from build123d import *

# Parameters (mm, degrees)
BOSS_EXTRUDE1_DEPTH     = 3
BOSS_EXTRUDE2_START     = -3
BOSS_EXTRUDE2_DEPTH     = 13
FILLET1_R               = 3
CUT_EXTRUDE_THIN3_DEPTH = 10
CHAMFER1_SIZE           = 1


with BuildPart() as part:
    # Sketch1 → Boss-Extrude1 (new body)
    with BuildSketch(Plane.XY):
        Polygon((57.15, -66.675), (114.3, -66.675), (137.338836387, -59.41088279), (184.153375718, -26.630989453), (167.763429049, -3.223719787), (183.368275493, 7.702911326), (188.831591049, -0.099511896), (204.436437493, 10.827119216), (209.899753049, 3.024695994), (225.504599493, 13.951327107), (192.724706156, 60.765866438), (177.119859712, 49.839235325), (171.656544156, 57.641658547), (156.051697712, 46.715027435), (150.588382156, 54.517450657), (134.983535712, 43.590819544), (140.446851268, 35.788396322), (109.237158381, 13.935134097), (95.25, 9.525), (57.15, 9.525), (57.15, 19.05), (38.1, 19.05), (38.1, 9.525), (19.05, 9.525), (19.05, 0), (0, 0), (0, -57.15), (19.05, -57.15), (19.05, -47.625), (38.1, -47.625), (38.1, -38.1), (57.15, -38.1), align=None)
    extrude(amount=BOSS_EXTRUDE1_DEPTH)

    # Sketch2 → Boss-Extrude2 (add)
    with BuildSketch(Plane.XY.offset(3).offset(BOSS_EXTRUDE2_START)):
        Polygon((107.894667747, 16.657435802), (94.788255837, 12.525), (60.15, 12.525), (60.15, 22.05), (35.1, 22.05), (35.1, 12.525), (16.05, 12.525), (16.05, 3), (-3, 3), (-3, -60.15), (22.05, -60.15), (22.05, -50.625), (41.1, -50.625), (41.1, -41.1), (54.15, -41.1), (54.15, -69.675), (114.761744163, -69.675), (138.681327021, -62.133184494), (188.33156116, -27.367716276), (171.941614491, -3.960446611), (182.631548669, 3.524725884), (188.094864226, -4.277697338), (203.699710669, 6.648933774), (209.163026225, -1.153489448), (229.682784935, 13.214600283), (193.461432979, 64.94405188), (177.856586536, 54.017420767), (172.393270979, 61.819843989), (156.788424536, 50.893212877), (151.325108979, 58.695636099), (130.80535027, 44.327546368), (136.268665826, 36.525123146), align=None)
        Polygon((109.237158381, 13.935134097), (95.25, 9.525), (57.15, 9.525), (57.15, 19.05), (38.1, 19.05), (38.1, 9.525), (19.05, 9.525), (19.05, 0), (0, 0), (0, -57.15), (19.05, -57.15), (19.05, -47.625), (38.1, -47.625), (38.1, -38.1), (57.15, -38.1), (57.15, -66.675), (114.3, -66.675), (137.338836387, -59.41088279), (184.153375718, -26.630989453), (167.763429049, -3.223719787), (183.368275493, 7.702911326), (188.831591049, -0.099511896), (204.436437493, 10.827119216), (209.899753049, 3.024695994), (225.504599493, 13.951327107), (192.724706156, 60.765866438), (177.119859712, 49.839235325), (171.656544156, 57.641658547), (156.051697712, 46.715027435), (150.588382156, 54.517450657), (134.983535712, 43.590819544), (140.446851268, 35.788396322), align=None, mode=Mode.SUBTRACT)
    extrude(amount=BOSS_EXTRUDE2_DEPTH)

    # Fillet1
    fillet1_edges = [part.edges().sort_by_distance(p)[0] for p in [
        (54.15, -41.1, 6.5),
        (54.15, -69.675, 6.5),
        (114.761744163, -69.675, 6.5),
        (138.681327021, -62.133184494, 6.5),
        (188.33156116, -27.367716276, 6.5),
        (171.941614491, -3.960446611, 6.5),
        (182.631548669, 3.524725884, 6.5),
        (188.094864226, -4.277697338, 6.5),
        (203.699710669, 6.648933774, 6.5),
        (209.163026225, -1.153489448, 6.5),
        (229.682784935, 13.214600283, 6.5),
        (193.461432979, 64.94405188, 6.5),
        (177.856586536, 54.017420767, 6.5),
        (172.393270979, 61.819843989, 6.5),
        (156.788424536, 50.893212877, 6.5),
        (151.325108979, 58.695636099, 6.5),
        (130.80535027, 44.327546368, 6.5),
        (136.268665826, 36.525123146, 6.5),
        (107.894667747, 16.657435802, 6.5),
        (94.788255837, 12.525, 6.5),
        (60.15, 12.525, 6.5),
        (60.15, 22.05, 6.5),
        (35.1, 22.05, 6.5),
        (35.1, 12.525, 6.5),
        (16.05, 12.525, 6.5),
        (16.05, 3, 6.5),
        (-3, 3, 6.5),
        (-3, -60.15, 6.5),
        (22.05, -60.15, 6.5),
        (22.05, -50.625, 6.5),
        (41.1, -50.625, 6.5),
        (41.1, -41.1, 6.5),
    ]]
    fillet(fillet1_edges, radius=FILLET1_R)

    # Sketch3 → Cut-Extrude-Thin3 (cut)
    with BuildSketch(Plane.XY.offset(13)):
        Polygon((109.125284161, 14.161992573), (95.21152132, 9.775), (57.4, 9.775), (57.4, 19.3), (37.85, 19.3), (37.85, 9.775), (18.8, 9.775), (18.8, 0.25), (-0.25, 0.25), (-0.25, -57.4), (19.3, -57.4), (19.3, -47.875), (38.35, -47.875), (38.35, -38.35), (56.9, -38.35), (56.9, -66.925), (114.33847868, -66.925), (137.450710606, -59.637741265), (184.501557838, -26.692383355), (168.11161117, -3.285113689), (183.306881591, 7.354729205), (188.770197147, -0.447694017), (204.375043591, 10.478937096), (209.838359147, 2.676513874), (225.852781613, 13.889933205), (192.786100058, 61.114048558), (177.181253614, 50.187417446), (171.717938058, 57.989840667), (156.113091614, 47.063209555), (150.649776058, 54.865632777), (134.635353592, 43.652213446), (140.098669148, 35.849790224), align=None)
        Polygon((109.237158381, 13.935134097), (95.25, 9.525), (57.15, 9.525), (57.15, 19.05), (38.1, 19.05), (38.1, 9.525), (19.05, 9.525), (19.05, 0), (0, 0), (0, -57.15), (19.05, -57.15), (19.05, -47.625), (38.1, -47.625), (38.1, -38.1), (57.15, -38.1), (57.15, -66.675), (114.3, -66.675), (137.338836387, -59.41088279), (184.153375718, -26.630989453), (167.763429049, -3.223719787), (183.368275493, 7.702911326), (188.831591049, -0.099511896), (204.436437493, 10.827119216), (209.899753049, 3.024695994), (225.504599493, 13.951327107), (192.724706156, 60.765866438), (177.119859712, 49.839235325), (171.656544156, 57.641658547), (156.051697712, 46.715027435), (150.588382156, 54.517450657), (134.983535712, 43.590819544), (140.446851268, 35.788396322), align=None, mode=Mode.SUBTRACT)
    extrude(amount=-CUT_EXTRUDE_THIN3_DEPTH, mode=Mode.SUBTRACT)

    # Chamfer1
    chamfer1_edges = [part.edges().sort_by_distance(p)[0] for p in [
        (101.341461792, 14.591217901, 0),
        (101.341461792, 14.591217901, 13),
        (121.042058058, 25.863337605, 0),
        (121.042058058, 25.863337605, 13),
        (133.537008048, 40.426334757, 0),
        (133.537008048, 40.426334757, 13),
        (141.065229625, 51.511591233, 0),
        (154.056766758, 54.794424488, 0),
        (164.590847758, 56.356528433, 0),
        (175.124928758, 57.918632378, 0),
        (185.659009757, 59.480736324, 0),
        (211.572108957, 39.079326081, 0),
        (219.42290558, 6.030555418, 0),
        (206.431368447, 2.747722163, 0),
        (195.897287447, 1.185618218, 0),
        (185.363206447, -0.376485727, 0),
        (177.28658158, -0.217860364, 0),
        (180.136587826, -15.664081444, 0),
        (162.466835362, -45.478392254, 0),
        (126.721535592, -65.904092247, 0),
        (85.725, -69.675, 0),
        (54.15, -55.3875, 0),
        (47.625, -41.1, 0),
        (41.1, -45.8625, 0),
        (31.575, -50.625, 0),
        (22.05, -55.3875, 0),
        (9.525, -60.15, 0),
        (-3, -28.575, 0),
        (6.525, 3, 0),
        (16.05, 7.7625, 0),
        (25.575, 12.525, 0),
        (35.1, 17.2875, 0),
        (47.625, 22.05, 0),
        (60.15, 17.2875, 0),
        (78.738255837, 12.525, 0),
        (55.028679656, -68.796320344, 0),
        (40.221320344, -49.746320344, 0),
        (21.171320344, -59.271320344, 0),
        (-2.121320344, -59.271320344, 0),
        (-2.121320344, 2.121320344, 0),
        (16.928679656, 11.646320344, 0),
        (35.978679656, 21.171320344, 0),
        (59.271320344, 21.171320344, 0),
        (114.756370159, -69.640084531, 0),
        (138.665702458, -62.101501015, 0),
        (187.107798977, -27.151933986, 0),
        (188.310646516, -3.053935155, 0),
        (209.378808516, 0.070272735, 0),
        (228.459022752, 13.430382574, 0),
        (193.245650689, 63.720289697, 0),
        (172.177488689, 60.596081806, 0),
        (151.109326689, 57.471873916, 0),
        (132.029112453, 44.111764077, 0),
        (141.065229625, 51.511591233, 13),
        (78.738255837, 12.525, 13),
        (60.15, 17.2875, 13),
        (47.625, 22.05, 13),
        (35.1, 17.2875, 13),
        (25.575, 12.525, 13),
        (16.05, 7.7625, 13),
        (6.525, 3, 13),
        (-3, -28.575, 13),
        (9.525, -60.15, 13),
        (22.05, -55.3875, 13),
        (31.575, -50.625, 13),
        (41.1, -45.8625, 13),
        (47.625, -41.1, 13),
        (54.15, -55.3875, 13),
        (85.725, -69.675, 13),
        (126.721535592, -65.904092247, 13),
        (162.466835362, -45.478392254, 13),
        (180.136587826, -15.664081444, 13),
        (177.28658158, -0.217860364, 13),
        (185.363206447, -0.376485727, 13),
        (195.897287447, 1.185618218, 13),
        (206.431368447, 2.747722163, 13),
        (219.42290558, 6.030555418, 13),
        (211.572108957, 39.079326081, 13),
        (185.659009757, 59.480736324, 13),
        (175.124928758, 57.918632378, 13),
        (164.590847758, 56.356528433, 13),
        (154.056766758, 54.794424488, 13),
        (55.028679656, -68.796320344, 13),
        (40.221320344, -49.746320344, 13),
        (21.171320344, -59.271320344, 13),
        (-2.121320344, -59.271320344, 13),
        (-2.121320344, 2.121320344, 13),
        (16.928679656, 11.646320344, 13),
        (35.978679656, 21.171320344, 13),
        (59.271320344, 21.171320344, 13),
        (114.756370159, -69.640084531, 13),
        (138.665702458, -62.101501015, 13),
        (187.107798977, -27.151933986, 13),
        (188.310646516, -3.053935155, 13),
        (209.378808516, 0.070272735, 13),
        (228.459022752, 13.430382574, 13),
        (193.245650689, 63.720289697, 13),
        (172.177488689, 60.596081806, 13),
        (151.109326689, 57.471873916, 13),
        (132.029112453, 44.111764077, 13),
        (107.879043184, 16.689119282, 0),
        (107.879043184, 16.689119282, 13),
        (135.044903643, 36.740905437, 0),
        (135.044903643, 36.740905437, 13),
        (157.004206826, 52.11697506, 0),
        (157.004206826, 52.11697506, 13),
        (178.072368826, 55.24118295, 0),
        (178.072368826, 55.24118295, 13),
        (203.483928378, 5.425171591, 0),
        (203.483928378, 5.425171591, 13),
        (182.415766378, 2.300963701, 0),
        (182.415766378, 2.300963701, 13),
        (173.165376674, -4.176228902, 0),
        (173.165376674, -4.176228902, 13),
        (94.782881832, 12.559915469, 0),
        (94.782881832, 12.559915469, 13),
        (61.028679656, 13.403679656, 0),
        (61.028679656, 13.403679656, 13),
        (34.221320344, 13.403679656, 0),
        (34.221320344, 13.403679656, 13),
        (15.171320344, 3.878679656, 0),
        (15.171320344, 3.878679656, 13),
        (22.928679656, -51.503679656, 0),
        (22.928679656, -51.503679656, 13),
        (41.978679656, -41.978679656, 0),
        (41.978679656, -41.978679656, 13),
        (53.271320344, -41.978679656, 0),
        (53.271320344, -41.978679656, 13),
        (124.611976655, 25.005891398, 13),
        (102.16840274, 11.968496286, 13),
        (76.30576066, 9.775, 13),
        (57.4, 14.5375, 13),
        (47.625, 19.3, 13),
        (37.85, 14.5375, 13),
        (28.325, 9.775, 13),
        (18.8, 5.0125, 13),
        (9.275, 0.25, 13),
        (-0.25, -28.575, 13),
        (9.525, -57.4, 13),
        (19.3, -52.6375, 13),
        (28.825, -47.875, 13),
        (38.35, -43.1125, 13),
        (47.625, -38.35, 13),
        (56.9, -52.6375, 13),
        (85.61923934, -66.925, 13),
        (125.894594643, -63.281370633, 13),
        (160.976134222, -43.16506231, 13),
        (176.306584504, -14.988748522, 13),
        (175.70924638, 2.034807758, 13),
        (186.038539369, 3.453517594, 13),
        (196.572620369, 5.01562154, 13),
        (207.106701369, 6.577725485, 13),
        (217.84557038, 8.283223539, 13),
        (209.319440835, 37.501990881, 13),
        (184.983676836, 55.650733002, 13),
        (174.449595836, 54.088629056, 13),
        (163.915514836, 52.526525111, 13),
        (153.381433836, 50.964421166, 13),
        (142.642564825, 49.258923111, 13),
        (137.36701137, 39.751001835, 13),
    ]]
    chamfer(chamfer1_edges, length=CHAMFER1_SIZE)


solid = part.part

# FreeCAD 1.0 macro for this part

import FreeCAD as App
import Part
import Sketcher
from FreeCAD import Vector
Q = App.Units.Quantity


def edges_at(feature, points):
    """Names of the edges that pass closest to the given points."""
    edges = feature.Shape.Edges
    near = lambda p: min(range(len(edges)), key=lambda i: edges[i].distToShape(Part.Vertex(*p))[0])
    return sorted({f"Edge{near(p) + 1}" for p in points})


def add_polygon(sketch, points):
    """Adds a closed chain of lines whose ends are joined by coincident constraints."""
    first, n = sketch.GeometryCount, len(points)
    for a, b in zip(points, points[1:] + points[:1]):
        sketch.addGeometry(Part.LineSegment(App.Vector(*a, 0), App.Vector(*b, 0)), False)
    for i in range(n):
        sketch.addConstraint(Sketcher.Constraint("Coincident", first + i, 2, first + (i + 1) % n, 1))

doc = App.newDocument("Part")
body = doc.addObject("PartDesign::Body", "Body")

sketch1 = body.newObject("Sketcher::SketchObject", "Sketch")
sketch1.AttachmentSupport = (doc.getObject("XY_Plane"), [""])
sketch1.MapMode = "FlatFace"
add_polygon(sketch1, [(57.15, -66.675), (114.3, -66.675), (137.338836, -59.410883), (184.153376, -26.630989), (167.763429, -3.22372), (183.368275, 7.702911), (188.831591, -0.099512), (204.436437, 10.827119), (209.899753, 3.024696), (225.504599, 13.951327), (192.724706, 60.765866), (177.11986, 49.839235), (171.656544, 57.641659), (156.051698, 46.715027), (150.588382, 54.517451), (134.983536, 43.59082), (140.446851, 35.788396), (109.237158, 13.935134), (95.25, 9.525), (57.15, 9.525), (57.15, 19.05), (38.1, 19.05), (38.1, 9.525), (19.05, 9.525), (19.05, 0), (0, 0), (0, -57.15), (19.05, -57.15), (19.05, -47.625), (38.1, -47.625), (38.1, -38.1), (57.15, -38.1)])
sketch1.addConstraint(Sketcher.Constraint("Horizontal", 0))
sketch1.addConstraint(Sketcher.Constraint("Horizontal", 18))
sketch1.addConstraint(Sketcher.Constraint("Vertical", 19))
sketch1.addConstraint(Sketcher.Constraint("Horizontal", 20))
sketch1.addConstraint(Sketcher.Constraint("Vertical", 21))
sketch1.addConstraint(Sketcher.Constraint("Horizontal", 22))
sketch1.addConstraint(Sketcher.Constraint("Vertical", 23))
sketch1.addConstraint(Sketcher.Constraint("Horizontal", 24))
sketch1.addConstraint(Sketcher.Constraint("Vertical", 25))
sketch1.addConstraint(Sketcher.Constraint("Horizontal", 26))
sketch1.addConstraint(Sketcher.Constraint("Vertical", 27))
sketch1.addConstraint(Sketcher.Constraint("Horizontal", 28))
sketch1.addConstraint(Sketcher.Constraint("Vertical", 29))
sketch1.addConstraint(Sketcher.Constraint("Horizontal", 30))
sketch1.addConstraint(Sketcher.Constraint("Vertical", 31))
sketch1.addConstraint(Sketcher.Constraint("Coincident", 24, 2, -1, 1))
sketch1.addConstraint(Sketcher.Constraint("Perpendicular", 2, 3))
sketch1.addConstraint(Sketcher.Constraint("Perpendicular", 3, 4))
sketch1.addConstraint(Sketcher.Constraint("Perpendicular", 4, 5))
sketch1.addConstraint(Sketcher.Constraint("Perpendicular", 5, 6))
sketch1.addConstraint(Sketcher.Constraint("Perpendicular", 6, 7))
sketch1.addConstraint(Sketcher.Constraint("Perpendicular", 7, 8))
sketch1.addConstraint(Sketcher.Constraint("Perpendicular", 8, 9))
sketch1.addConstraint(Sketcher.Constraint("Perpendicular", 9, 10))
sketch1.addConstraint(Sketcher.Constraint("Perpendicular", 10, 11))
sketch1.addConstraint(Sketcher.Constraint("Perpendicular", 11, 12))
sketch1.addConstraint(Sketcher.Constraint("Perpendicular", 12, 13))
sketch1.addConstraint(Sketcher.Constraint("Perpendicular", 13, 14))
sketch1.addConstraint(Sketcher.Constraint("Perpendicular", 14, 15))
sketch1.addConstraint(Sketcher.Constraint("Perpendicular", 15, 16))
sketch1.addConstraint(Sketcher.Constraint("Parallel", 1, 17))
sketch1.addConstraint(Sketcher.Constraint("Horizontal", 18, 2, 21, 2))
sketch1.addConstraint(Sketcher.Constraint("Vertical", 23, 2, 26, 2))
sketch1.addConstraint(Sketcher.Constraint("Vertical", 21, 2, 28, 2))
sketch1.addConstraint(Sketcher.Constraint("Vertical", 19, 2, 30, 2))
sketch1.addConstraint(Sketcher.Constraint("Equal", 20, 22))
sketch1.addConstraint(Sketcher.Constraint("Equal", 22, 24))
sketch1.addConstraint(Sketcher.Constraint("Equal", 21, 23))
sketch1.addConstraint(Sketcher.Constraint("Equal", 0, 25))
sketch1.addConstraint(Sketcher.Constraint("Equal", 23, 27))
sketch1.addConstraint(Sketcher.Constraint("Equal", 27, 29))
sketch1.addConstraint(Sketcher.Constraint("Equal", 4, 6))
sketch1.addConstraint(Sketcher.Constraint("Equal", 5, 7))
sketch1.addConstraint(Sketcher.Constraint("Equal", 6, 8))
sketch1.addConstraint(Sketcher.Constraint("Equal", 2, 9))
sketch1.addConstraint(Sketcher.Constraint("Equal", 8, 10))
sketch1.addConstraint(Sketcher.Constraint("Equal", 7, 11))
sketch1.addConstraint(Sketcher.Constraint("Equal", 10, 12))
sketch1.addConstraint(Sketcher.Constraint("Equal", 11, 13))
sketch1.addConstraint(Sketcher.Constraint("Equal", 12, 14))
sketch1.addConstraint(Sketcher.Constraint("Equal", 13, 15))
sketch1.addConstraint(Sketcher.Constraint("DistanceX", 18, 2, 18, 1, Q("1.5 in")))
sketch1.addConstraint(Sketcher.Constraint("Angle", 2, Q("35 deg")))
sketch1.addConstraint(Sketcher.Constraint("DistanceY", 0, 2, 18, 2, Q("3 in")))
sketch1.addConstraint(Sketcher.Constraint("DistanceX", 22, 2, 17, 2, Q("3 in")))
sketch1.addConstraint(Sketcher.Constraint("DistanceY", 25, 2, 20, 2, Q("3 in")))
sketch1.addConstraint(Sketcher.Constraint("Distance", 16, Q("1.5 in")))
sketch1.addConstraint(Sketcher.Constraint("DistanceX", 0, 1, 0, 2, Q("2.25 in")))
sketch1.addConstraint(Sketcher.Constraint("Angle", 1, Q("17.5 deg")))
sketch1.addConstraint(Sketcher.Constraint("Distance", 2, Q("2.25 in")))
sketch1.addConstraint(Sketcher.Constraint("Distance", 4, Q("0.75 in")))
sketch1.addConstraint(Sketcher.Constraint("Distance", 3, Q("1.125 in")))
sketch1.addConstraint(Sketcher.Constraint("DistanceX", -1, 1, 8, 2, Q("225.504599 mm")))
pad1 = body.newObject("PartDesign::Pad", "Pad")
pad1.Profile = sketch1
pad1.Length = 3

sketch2 = body.newObject("Sketcher::SketchObject", "Sketch001")
sketch2.AttachmentSupport = (doc.getObject("XY_Plane"), [""])
sketch2.MapMode = "FlatFace"
add_polygon(sketch2, [(107.894668, 16.657436), (94.788256, 12.525), (60.15, 12.525), (60.15, 22.05), (35.1, 22.05), (35.1, 12.525), (16.05, 12.525), (16.05, 3), (-3, 3), (-3, -60.15), (22.05, -60.15), (22.05, -50.625), (41.1, -50.625), (41.1, -41.1), (54.15, -41.1), (54.15, -69.675), (114.761744, -69.675), (138.681327, -62.133184), (188.331561, -27.367716), (171.941614, -3.960447), (182.631549, 3.524726), (188.094864, -4.277697), (203.699711, 6.648934), (209.163026, -1.153489), (229.682785, 13.2146), (193.461433, 64.944052), (177.856587, 54.017421), (172.393271, 61.819844), (156.788425, 50.893213), (151.325109, 58.695636), (130.80535, 44.327546), (136.268666, 36.525123)])
add_polygon(sketch2, [(95.25, 9.525), (109.237158, 13.935134), (140.446851, 35.788396), (134.983536, 43.59082), (150.588382, 54.517451), (156.051698, 46.715027), (171.656544, 57.641659), (177.11986, 49.839235), (192.724706, 60.765866), (225.504599, 13.951327), (209.899753, 3.024696), (204.436437, 10.827119), (188.831591, -0.099512), (183.368275, 7.702911), (167.763429, -3.22372), (184.153376, -26.630989), (137.338836, -59.410883), (114.3, -66.675), (57.15, -66.675), (57.15, -38.1), (38.1, -38.1), (38.1, -47.625), (19.05, -47.625), (19.05, -57.15), (0, -57.15), (0, 0), (19.05, 0), (19.05, 9.525), (38.1, 9.525), (38.1, 19.05), (57.15, 19.05), (57.15, 9.525)])
sketch2.addConstraint(Sketcher.Constraint("Horizontal", 1))
sketch2.addConstraint(Sketcher.Constraint("Vertical", 2))
sketch2.addConstraint(Sketcher.Constraint("Horizontal", 3))
sketch2.addConstraint(Sketcher.Constraint("Vertical", 4))
sketch2.addConstraint(Sketcher.Constraint("Horizontal", 5))
sketch2.addConstraint(Sketcher.Constraint("Vertical", 6))
sketch2.addConstraint(Sketcher.Constraint("Horizontal", 7))
sketch2.addConstraint(Sketcher.Constraint("Vertical", 8))
sketch2.addConstraint(Sketcher.Constraint("Horizontal", 9))
sketch2.addConstraint(Sketcher.Constraint("Vertical", 10))
sketch2.addConstraint(Sketcher.Constraint("Horizontal", 11))
sketch2.addConstraint(Sketcher.Constraint("Vertical", 12))
sketch2.addConstraint(Sketcher.Constraint("Horizontal", 13))
sketch2.addConstraint(Sketcher.Constraint("Vertical", 14))
sketch2.addConstraint(Sketcher.Constraint("Horizontal", 15))
sketch2.addConstraint(Sketcher.Constraint("Horizontal", 49))
sketch2.addConstraint(Sketcher.Constraint("Vertical", 50))
sketch2.addConstraint(Sketcher.Constraint("Horizontal", 51))
sketch2.addConstraint(Sketcher.Constraint("Vertical", 52))
sketch2.addConstraint(Sketcher.Constraint("Horizontal", 53))
sketch2.addConstraint(Sketcher.Constraint("Vertical", 54))
sketch2.addConstraint(Sketcher.Constraint("Horizontal", 55))
sketch2.addConstraint(Sketcher.Constraint("Vertical", 56))
sketch2.addConstraint(Sketcher.Constraint("Horizontal", 57))
sketch2.addConstraint(Sketcher.Constraint("Vertical", 58))
sketch2.addConstraint(Sketcher.Constraint("Horizontal", 59))
sketch2.addConstraint(Sketcher.Constraint("Vertical", 60))
sketch2.addConstraint(Sketcher.Constraint("Horizontal", 61))
sketch2.addConstraint(Sketcher.Constraint("Vertical", 62))
sketch2.addConstraint(Sketcher.Constraint("Horizontal", 63))
sketch2.addConstraint(Sketcher.Constraint("Coincident", 56, 2, -1, 1))
sketch2.addConstraint(Sketcher.Constraint("Parallel", 0, 16))
sketch2.addConstraint(Sketcher.Constraint("Perpendicular", 17, 18))
sketch2.addConstraint(Sketcher.Constraint("Perpendicular", 18, 19))
sketch2.addConstraint(Sketcher.Constraint("Perpendicular", 19, 20))
sketch2.addConstraint(Sketcher.Constraint("Perpendicular", 20, 21))
sketch2.addConstraint(Sketcher.Constraint("Perpendicular", 21, 22))
sketch2.addConstraint(Sketcher.Constraint("Perpendicular", 22, 23))
sketch2.addConstraint(Sketcher.Constraint("Perpendicular", 23, 24))
sketch2.addConstraint(Sketcher.Constraint("Perpendicular", 24, 25))
sketch2.addConstraint(Sketcher.Constraint("Perpendicular", 25, 26))
sketch2.addConstraint(Sketcher.Constraint("Perpendicular", 26, 27))
sketch2.addConstraint(Sketcher.Constraint("Perpendicular", 27, 28))
sketch2.addConstraint(Sketcher.Constraint("Perpendicular", 28, 29))
sketch2.addConstraint(Sketcher.Constraint("Perpendicular", 29, 30))
sketch2.addConstraint(Sketcher.Constraint("Perpendicular", 30, 31))
sketch2.addConstraint(Sketcher.Constraint("Parallel", 16, 32))
sketch2.addConstraint(Sketcher.Constraint("Parallel", 31, 33))
sketch2.addConstraint(Sketcher.Constraint("Perpendicular", 33, 34))
sketch2.addConstraint(Sketcher.Constraint("Perpendicular", 34, 35))
sketch2.addConstraint(Sketcher.Constraint("Perpendicular", 35, 36))
sketch2.addConstraint(Sketcher.Constraint("Perpendicular", 36, 37))
sketch2.addConstraint(Sketcher.Constraint("Perpendicular", 37, 38))
sketch2.addConstraint(Sketcher.Constraint("Perpendicular", 38, 39))
sketch2.addConstraint(Sketcher.Constraint("Perpendicular", 39, 40))
sketch2.addConstraint(Sketcher.Constraint("Perpendicular", 40, 41))
sketch2.addConstraint(Sketcher.Constraint("Perpendicular", 41, 42))
sketch2.addConstraint(Sketcher.Constraint("Perpendicular", 42, 43))
sketch2.addConstraint(Sketcher.Constraint("Perpendicular", 43, 44))
sketch2.addConstraint(Sketcher.Constraint("Perpendicular", 44, 45))
sketch2.addConstraint(Sketcher.Constraint("Perpendicular", 45, 46))
sketch2.addConstraint(Sketcher.Constraint("Perpendicular", 46, 47))
sketch2.addConstraint(Sketcher.Constraint("Parallel", 32, 48))
sketch2.addConstraint(Sketcher.Constraint("Horizontal", 1, 2, 4, 2))
sketch2.addConstraint(Sketcher.Constraint("Horizontal", 59, 2, 62, 2))
sketch2.addConstraint(Sketcher.Constraint("Vertical", 54, 2, 57, 2))
sketch2.addConstraint(Sketcher.Constraint("Vertical", 52, 2, 59, 2))
sketch2.addConstraint(Sketcher.Constraint("Vertical", 50, 2, 61, 2))
sketch2.addConstraint(Sketcher.Constraint("Equal", 5, 7))
sketch2.addConstraint(Sketcher.Constraint("Equal", 3, 9))
sketch2.addConstraint(Sketcher.Constraint("Equal", 7, 11))
sketch2.addConstraint(Sketcher.Constraint("Equal", 11, 51))
sketch2.addConstraint(Sketcher.Constraint("Equal", 51, 53))
sketch2.addConstraint(Sketcher.Constraint("Equal", 53, 55))
sketch2.addConstraint(Sketcher.Constraint("Equal", 4, 6))
sketch2.addConstraint(Sketcher.Constraint("Equal", 6, 10))
sketch2.addConstraint(Sketcher.Constraint("Equal", 10, 12))
sketch2.addConstraint(Sketcher.Constraint("Equal", 14, 50))
sketch2.addConstraint(Sketcher.Constraint("Equal", 12, 52))
sketch2.addConstraint(Sketcher.Constraint("Equal", 52, 54))
sketch2.addConstraint(Sketcher.Constraint("Equal", 49, 56))
sketch2.addConstraint(Sketcher.Constraint("Equal", 54, 58))
sketch2.addConstraint(Sketcher.Constraint("Equal", 58, 60))
sketch2.addConstraint(Sketcher.Constraint("Equal", 20, 22))
sketch2.addConstraint(Sketcher.Constraint("Equal", 21, 25))
sketch2.addConstraint(Sketcher.Constraint("Equal", 22, 26))
sketch2.addConstraint(Sketcher.Constraint("Equal", 25, 27))
sketch2.addConstraint(Sketcher.Constraint("Equal", 26, 28))
sketch2.addConstraint(Sketcher.Constraint("Equal", 23, 29))
sketch2.addConstraint(Sketcher.Constraint("Equal", 28, 30))
sketch2.addConstraint(Sketcher.Constraint("Equal", 30, 34))
sketch2.addConstraint(Sketcher.Constraint("Equal", 27, 35))
sketch2.addConstraint(Sketcher.Constraint("Equal", 34, 36))
sketch2.addConstraint(Sketcher.Constraint("Equal", 35, 37))
sketch2.addConstraint(Sketcher.Constraint("Equal", 36, 38))
sketch2.addConstraint(Sketcher.Constraint("Equal", 37, 39))
sketch2.addConstraint(Sketcher.Constraint("Equal", 39, 41))
sketch2.addConstraint(Sketcher.Constraint("Equal", 38, 42))
sketch2.addConstraint(Sketcher.Constraint("Equal", 41, 43))
sketch2.addConstraint(Sketcher.Constraint("Equal", 42, 44))
sketch2.addConstraint(Sketcher.Constraint("Equal", 43, 45))
sketch2.addConstraint(Sketcher.Constraint("Equal", 18, 46))
sketch2.addConstraint(Sketcher.Constraint("Equal", 40, 47))
sketch2.addConstraint(Sketcher.Constraint("DistanceX", 63, 1, 63, 2, Q("1.5 in")))
sketch2.addConstraint(Sketcher.Constraint("Angle", 17, Q("35 deg")))
sketch2.addConstraint(Sketcher.Constraint("Distance", 33, Q("1.5 in")))
sketch2.addConstraint(Sketcher.Constraint("DistanceX", 5, 2, 5, 1, Q("0.75 in")))
sketch2.addConstraint(Sketcher.Constraint("DistanceX", 49, 2, 49, 1, Q("2.25 in")))
sketch2.addConstraint(Sketcher.Constraint("DistanceY", 50, 2, -1, 1, Q("1.5 in")))
sketch2.addConstraint(Sketcher.Constraint("Angle", 0, Q("-162.5 deg")))
sketch2.addConstraint(Sketcher.Constraint("Distance", 21, Q("0.75 in")))
sketch2.addConstraint(Sketcher.Constraint("Distance", 40, Q("2.25 in")))
sketch2.addConstraint(Sketcher.Constraint("DistanceY", 14, 2, 14, 1, Q("1.125 in")))
sketch2.addConstraint(Sketcher.Constraint("Distance", 18, Q("1.125 in")))
sketch2.addConstraint(Sketcher.Constraint("DistanceX", 3, 2, 3, 1, Q("25.05 mm")))
sketch2.addConstraint(Sketcher.Constraint("DistanceX", 13, 1, 13, 2, Q("13.05 mm")))
sketch2.addConstraint(Sketcher.Constraint("DistanceY", 8, 2, 8, 1, Q("63.15 mm")))
sketch2.addConstraint(Sketcher.Constraint("Distance", 19, Q("13.05 mm")))
sketch2.addConstraint(Sketcher.Constraint("Distance", 23, Q("25.05 mm")))
sketch2.addConstraint(Sketcher.Constraint("Distance", 24, Q("63.15 mm")))
sketch2.addConstraint(Sketcher.Constraint("DistanceY", -1, 1, 0, 2, Q("12.525 mm")))
sketch2.addConstraint(Sketcher.Constraint("DistanceX", -1, 1, 1, 2, Q("60.15 mm")))
sketch2.addConstraint(Sketcher.Constraint("DistanceY", -1, 1, 23, 2, Q("13.2146 mm")))
sketch2.addConstraint(Sketcher.Constraint("DistanceX", -1, 1, 40, 2, Q("225.504599 mm")))
sketch2.addConstraint(Sketcher.Constraint("Distance", 16, Q("25.080379 mm")))
sketch2.addConstraint(Sketcher.Constraint("DistanceX", 1, 2, 1, 1, Q("34.638256 mm")))
sketch2.addConstraint(Sketcher.Constraint("DistanceX", 15, 1, 15, 2, Q("60.611744 mm")))
pad2 = body.newObject("PartDesign::Pad", "Pad001")
pad2.Profile = sketch2
pad2.Length = 13
doc.recompute()

fillet = body.newObject("PartDesign::Fillet", "Fillet")
fillet.Base = (pad2, edges_at(pad2, [
    (54.15, -41.1, 6.5),
    (54.15, -69.675, 6.5),
    (114.762, -69.675, 6.5),
    (138.681, -62.133, 6.5),
    (188.332, -27.368, 6.5),
    (171.942, -3.96, 6.5),
    (182.632, 3.525, 6.5),
    (188.095, -4.278, 6.5),
    (203.7, 6.649, 6.5),
    (209.163, -1.153, 6.5),
    (229.683, 13.215, 6.5),
    (193.461, 64.944, 6.5),
    (177.857, 54.017, 6.5),
    (172.393, 61.82, 6.5),
    (156.788, 50.893, 6.5),
    (151.325, 58.696, 6.5),
    (130.805, 44.328, 6.5),
    (136.269, 36.525, 6.5),
    (107.895, 16.657, 6.5),
    (94.788, 12.525, 6.5),
    (60.15, 12.525, 6.5),
    (60.15, 22.05, 6.5),
    (35.1, 22.05, 6.5),
    (35.1, 12.525, 6.5),
    (16.05, 12.525, 6.5),
    (16.05, 3, 6.5),
    (-3, 3, 6.5),
    (-3, -60.15, 6.5),
    (22.05, -60.15, 6.5),
    (22.05, -50.625, 6.5),
    (41.1, -50.625, 6.5),
    (41.1, -41.1, 6.5),
]))
fillet.Radius = 3

sketch3 = body.newObject("Sketcher::SketchObject", "Sketch002")
sketch3.AttachmentSupport = (doc.getObject("XY_Plane"), [""])
sketch3.MapMode = "FlatFace"
sketch3.AttachmentOffset = App.Placement(Vector(0, 0, 13), App.Rotation())
add_polygon(sketch3, [(109.125284, 14.161993), (95.211521, 9.775), (57.4, 9.775), (57.4, 19.3), (37.85, 19.3), (37.85, 9.775), (18.8, 9.775), (18.8, 0.25), (-0.25, 0.25), (-0.25, -57.4), (19.3, -57.4), (19.3, -47.875), (38.35, -47.875), (38.35, -38.35), (56.9, -38.35), (56.9, -66.925), (114.338479, -66.925), (137.450711, -59.637741), (184.501558, -26.692383), (168.111611, -3.285114), (183.306882, 7.354729), (188.770197, -0.447694), (204.375044, 10.478937), (209.838359, 2.676514), (225.852782, 13.889933), (192.7861, 61.114049), (177.181254, 50.187417), (171.717938, 57.989841), (156.113092, 47.06321), (150.649776, 54.865633), (134.635354, 43.652213), (140.098669, 35.84979)])
add_polygon(sketch3, [(95.25, 9.525), (109.237158, 13.935134), (140.446851, 35.788396), (134.983536, 43.59082), (150.588382, 54.517451), (156.051698, 46.715027), (171.656544, 57.641659), (177.11986, 49.839235), (192.724706, 60.765866), (225.504599, 13.951327), (209.899753, 3.024696), (204.436437, 10.827119), (188.831591, -0.099512), (183.368275, 7.702911), (167.763429, -3.22372), (184.153376, -26.630989), (137.338836, -59.410883), (114.3, -66.675), (57.15, -66.675), (57.15, -38.1), (38.1, -38.1), (38.1, -47.625), (19.05, -47.625), (19.05, -57.15), (0, -57.15), (0, 0), (19.05, 0), (19.05, 9.525), (38.1, 9.525), (38.1, 19.05), (57.15, 19.05), (57.15, 9.525)])
sketch3.addConstraint(Sketcher.Constraint("Horizontal", 1))
sketch3.addConstraint(Sketcher.Constraint("Vertical", 2))
sketch3.addConstraint(Sketcher.Constraint("Horizontal", 3))
sketch3.addConstraint(Sketcher.Constraint("Vertical", 4))
sketch3.addConstraint(Sketcher.Constraint("Horizontal", 5))
sketch3.addConstraint(Sketcher.Constraint("Vertical", 6))
sketch3.addConstraint(Sketcher.Constraint("Horizontal", 7))
sketch3.addConstraint(Sketcher.Constraint("Vertical", 8))
sketch3.addConstraint(Sketcher.Constraint("Horizontal", 9))
sketch3.addConstraint(Sketcher.Constraint("Vertical", 10))
sketch3.addConstraint(Sketcher.Constraint("Horizontal", 11))
sketch3.addConstraint(Sketcher.Constraint("Vertical", 12))
sketch3.addConstraint(Sketcher.Constraint("Horizontal", 13))
sketch3.addConstraint(Sketcher.Constraint("Vertical", 14))
sketch3.addConstraint(Sketcher.Constraint("Horizontal", 15))
sketch3.addConstraint(Sketcher.Constraint("Horizontal", 49))
sketch3.addConstraint(Sketcher.Constraint("Vertical", 50))
sketch3.addConstraint(Sketcher.Constraint("Horizontal", 51))
sketch3.addConstraint(Sketcher.Constraint("Vertical", 52))
sketch3.addConstraint(Sketcher.Constraint("Horizontal", 53))
sketch3.addConstraint(Sketcher.Constraint("Vertical", 54))
sketch3.addConstraint(Sketcher.Constraint("Horizontal", 55))
sketch3.addConstraint(Sketcher.Constraint("Vertical", 56))
sketch3.addConstraint(Sketcher.Constraint("Horizontal", 57))
sketch3.addConstraint(Sketcher.Constraint("Vertical", 58))
sketch3.addConstraint(Sketcher.Constraint("Horizontal", 59))
sketch3.addConstraint(Sketcher.Constraint("Vertical", 60))
sketch3.addConstraint(Sketcher.Constraint("Horizontal", 61))
sketch3.addConstraint(Sketcher.Constraint("Vertical", 62))
sketch3.addConstraint(Sketcher.Constraint("Horizontal", 63))
sketch3.addConstraint(Sketcher.Constraint("Coincident", 56, 2, -1, 1))
sketch3.addConstraint(Sketcher.Constraint("Parallel", 0, 16))
sketch3.addConstraint(Sketcher.Constraint("Perpendicular", 17, 18))
sketch3.addConstraint(Sketcher.Constraint("Perpendicular", 18, 19))
sketch3.addConstraint(Sketcher.Constraint("Perpendicular", 19, 20))
sketch3.addConstraint(Sketcher.Constraint("Perpendicular", 20, 21))
sketch3.addConstraint(Sketcher.Constraint("Perpendicular", 21, 22))
sketch3.addConstraint(Sketcher.Constraint("Perpendicular", 22, 23))
sketch3.addConstraint(Sketcher.Constraint("Perpendicular", 23, 24))
sketch3.addConstraint(Sketcher.Constraint("Perpendicular", 24, 25))
sketch3.addConstraint(Sketcher.Constraint("Perpendicular", 25, 26))
sketch3.addConstraint(Sketcher.Constraint("Perpendicular", 26, 27))
sketch3.addConstraint(Sketcher.Constraint("Perpendicular", 27, 28))
sketch3.addConstraint(Sketcher.Constraint("Perpendicular", 28, 29))
sketch3.addConstraint(Sketcher.Constraint("Perpendicular", 29, 30))
sketch3.addConstraint(Sketcher.Constraint("Perpendicular", 30, 31))
sketch3.addConstraint(Sketcher.Constraint("Parallel", 16, 32))
sketch3.addConstraint(Sketcher.Constraint("Parallel", 31, 33))
sketch3.addConstraint(Sketcher.Constraint("Perpendicular", 33, 34))
sketch3.addConstraint(Sketcher.Constraint("Perpendicular", 34, 35))
sketch3.addConstraint(Sketcher.Constraint("Perpendicular", 35, 36))
sketch3.addConstraint(Sketcher.Constraint("Perpendicular", 36, 37))
sketch3.addConstraint(Sketcher.Constraint("Perpendicular", 37, 38))
sketch3.addConstraint(Sketcher.Constraint("Perpendicular", 38, 39))
sketch3.addConstraint(Sketcher.Constraint("Perpendicular", 39, 40))
sketch3.addConstraint(Sketcher.Constraint("Perpendicular", 40, 41))
sketch3.addConstraint(Sketcher.Constraint("Perpendicular", 41, 42))
sketch3.addConstraint(Sketcher.Constraint("Perpendicular", 42, 43))
sketch3.addConstraint(Sketcher.Constraint("Perpendicular", 43, 44))
sketch3.addConstraint(Sketcher.Constraint("Perpendicular", 44, 45))
sketch3.addConstraint(Sketcher.Constraint("Perpendicular", 45, 46))
sketch3.addConstraint(Sketcher.Constraint("Perpendicular", 46, 47))
sketch3.addConstraint(Sketcher.Constraint("Parallel", 32, 48))
sketch3.addConstraint(Sketcher.Constraint("Horizontal", 1, 2, 4, 2))
sketch3.addConstraint(Sketcher.Constraint("Horizontal", 59, 2, 62, 2))
sketch3.addConstraint(Sketcher.Constraint("Vertical", 54, 2, 57, 2))
sketch3.addConstraint(Sketcher.Constraint("Vertical", 52, 2, 59, 2))
sketch3.addConstraint(Sketcher.Constraint("Vertical", 50, 2, 61, 2))
sketch3.addConstraint(Sketcher.Constraint("Equal", 5, 7))
sketch3.addConstraint(Sketcher.Constraint("Equal", 3, 9))
sketch3.addConstraint(Sketcher.Constraint("Equal", 7, 11))
sketch3.addConstraint(Sketcher.Constraint("Equal", 11, 51))
sketch3.addConstraint(Sketcher.Constraint("Equal", 51, 53))
sketch3.addConstraint(Sketcher.Constraint("Equal", 53, 55))
sketch3.addConstraint(Sketcher.Constraint("Equal", 4, 6))
sketch3.addConstraint(Sketcher.Constraint("Equal", 6, 10))
sketch3.addConstraint(Sketcher.Constraint("Equal", 10, 12))
sketch3.addConstraint(Sketcher.Constraint("Equal", 14, 50))
sketch3.addConstraint(Sketcher.Constraint("Equal", 12, 52))
sketch3.addConstraint(Sketcher.Constraint("Equal", 52, 54))
sketch3.addConstraint(Sketcher.Constraint("Equal", 49, 56))
sketch3.addConstraint(Sketcher.Constraint("Equal", 54, 58))
sketch3.addConstraint(Sketcher.Constraint("Equal", 58, 60))
sketch3.addConstraint(Sketcher.Constraint("Equal", 20, 22))
sketch3.addConstraint(Sketcher.Constraint("Equal", 21, 25))
sketch3.addConstraint(Sketcher.Constraint("Equal", 22, 26))
sketch3.addConstraint(Sketcher.Constraint("Equal", 25, 27))
sketch3.addConstraint(Sketcher.Constraint("Equal", 26, 28))
sketch3.addConstraint(Sketcher.Constraint("Equal", 23, 29))
sketch3.addConstraint(Sketcher.Constraint("Equal", 28, 30))
sketch3.addConstraint(Sketcher.Constraint("Equal", 30, 34))
sketch3.addConstraint(Sketcher.Constraint("Equal", 27, 35))
sketch3.addConstraint(Sketcher.Constraint("Equal", 34, 36))
sketch3.addConstraint(Sketcher.Constraint("Equal", 35, 37))
sketch3.addConstraint(Sketcher.Constraint("Equal", 36, 38))
sketch3.addConstraint(Sketcher.Constraint("Equal", 37, 39))
sketch3.addConstraint(Sketcher.Constraint("Equal", 39, 41))
sketch3.addConstraint(Sketcher.Constraint("Equal", 38, 42))
sketch3.addConstraint(Sketcher.Constraint("Equal", 41, 43))
sketch3.addConstraint(Sketcher.Constraint("Equal", 42, 44))
sketch3.addConstraint(Sketcher.Constraint("Equal", 43, 45))
sketch3.addConstraint(Sketcher.Constraint("Equal", 18, 46))
sketch3.addConstraint(Sketcher.Constraint("Equal", 40, 47))
sketch3.addConstraint(Sketcher.Constraint("DistanceX", 63, 1, 63, 2, Q("1.5 in")))
sketch3.addConstraint(Sketcher.Constraint("Angle", 17, Q("35 deg")))
sketch3.addConstraint(Sketcher.Constraint("Distance", 33, Q("1.5 in")))
sketch3.addConstraint(Sketcher.Constraint("DistanceX", 5, 2, 5, 1, Q("0.75 in")))
sketch3.addConstraint(Sketcher.Constraint("DistanceX", 49, 2, 49, 1, Q("2.25 in")))
sketch3.addConstraint(Sketcher.Constraint("DistanceY", 50, 2, -1, 1, Q("1.5 in")))
sketch3.addConstraint(Sketcher.Constraint("Angle", 0, Q("-162.5 deg")))
sketch3.addConstraint(Sketcher.Constraint("Distance", 21, Q("0.75 in")))
sketch3.addConstraint(Sketcher.Constraint("Distance", 40, Q("2.25 in")))
sketch3.addConstraint(Sketcher.Constraint("DistanceY", 14, 2, 14, 1, Q("1.125 in")))
sketch3.addConstraint(Sketcher.Constraint("Distance", 18, Q("1.125 in")))
sketch3.addConstraint(Sketcher.Constraint("DistanceX", 3, 2, 3, 1, Q("19.55 mm")))
sketch3.addConstraint(Sketcher.Constraint("DistanceX", 13, 1, 13, 2, Q("18.55 mm")))
sketch3.addConstraint(Sketcher.Constraint("DistanceY", 8, 2, 8, 1, Q("57.65 mm")))
sketch3.addConstraint(Sketcher.Constraint("Distance", 19, Q("18.55 mm")))
sketch3.addConstraint(Sketcher.Constraint("Distance", 23, Q("19.55 mm")))
sketch3.addConstraint(Sketcher.Constraint("Distance", 24, Q("57.65 mm")))
sketch3.addConstraint(Sketcher.Constraint("DistanceX", 1, 2, 1, 1, Q("37.811521 mm")))
sketch3.addConstraint(Sketcher.Constraint("DistanceX", 15, 1, 15, 2, Q("57.438479 mm")))
sketch3.addConstraint(Sketcher.Constraint("DistanceY", -1, 1, 0, 2, Q("9.775 mm")))
sketch3.addConstraint(Sketcher.Constraint("DistanceX", -1, 1, 1, 2, Q("57.4 mm")))
sketch3.addConstraint(Sketcher.Constraint("DistanceX", -1, 1, 24, 2, Q("192.7861 mm")))
sketch3.addConstraint(Sketcher.Constraint("DistanceX", -1, 1, 40, 2, Q("225.504599 mm")))
sketch3.addConstraint(Sketcher.Constraint("Distance", 16, Q("24.233848 mm")))
pocket1 = body.newObject("PartDesign::Pocket", "Pocket")
pocket1.Profile = sketch3
pocket1.Length = 10
doc.recompute()

chamfer = body.newObject("PartDesign::Chamfer", "Chamfer")
chamfer.Base = (pocket1, edges_at(pocket1, [
    (101.341, 14.591, 0),
    (101.341, 14.591, 13),
    (121.042, 25.863, 0),
    (121.042, 25.863, 13),
    (133.537, 40.426, 0),
    (133.537, 40.426, 13),
    (141.065, 51.512, 0),
    (154.057, 54.794, 0),
    (164.591, 56.357, 0),
    (175.125, 57.919, 0),
    (185.659, 59.481, 0),
    (211.572, 39.079, 0),
    (219.423, 6.031, 0),
    (206.431, 2.748, 0),
    (195.897, 1.186, 0),
    (185.363, -0.376, 0),
    (177.287, -0.218, 0),
    (180.137, -15.664, 0),
    (162.467, -45.478, 0),
    (126.722, -65.904, 0),
    (85.725, -69.675, 0),
    (54.15, -55.388, 0),
    (47.625, -41.1, 0),
    (41.1, -45.862, 0),
    (31.575, -50.625, 0),
    (22.05, -55.388, 0),
    (9.525, -60.15, 0),
    (-3, -28.575, 0),
    (6.525, 3, 0),
    (16.05, 7.763, 0),
    (25.575, 12.525, 0),
    (35.1, 17.288, 0),
    (47.625, 22.05, 0),
    (60.15, 17.288, 0),
    (78.738, 12.525, 0),
    (55.029, -68.796, 0),
    (40.221, -49.746, 0),
    (21.171, -59.271, 0),
    (-2.121, -59.271, 0),
    (-2.121, 2.121, 0),
    (16.929, 11.646, 0),
    (35.979, 21.171, 0),
    (59.271, 21.171, 0),
    (114.756, -69.64, 0),
    (138.666, -62.102, 0),
    (187.108, -27.152, 0),
    (188.311, -3.054, 0),
    (209.379, 0.07, 0),
    (228.459, 13.43, 0),
    (193.246, 63.72, 0),
    (172.177, 60.596, 0),
    (151.109, 57.472, 0),
    (132.029, 44.112, 0),
    (141.065, 51.512, 13),
    (78.738, 12.525, 13),
    (60.15, 17.288, 13),
    (47.625, 22.05, 13),
    (35.1, 17.288, 13),
    (25.575, 12.525, 13),
    (16.05, 7.763, 13),
    (6.525, 3, 13),
    (-3, -28.575, 13),
    (9.525, -60.15, 13),
    (22.05, -55.388, 13),
    (31.575, -50.625, 13),
    (41.1, -45.862, 13),
    (47.625, -41.1, 13),
    (54.15, -55.388, 13),
    (85.725, -69.675, 13),
    (126.722, -65.904, 13),
    (162.467, -45.478, 13),
    (180.137, -15.664, 13),
    (177.287, -0.218, 13),
    (185.363, -0.376, 13),
    (195.897, 1.186, 13),
    (206.431, 2.748, 13),
    (219.423, 6.031, 13),
    (211.572, 39.079, 13),
    (185.659, 59.481, 13),
    (175.125, 57.919, 13),
    (164.591, 56.357, 13),
    (154.057, 54.794, 13),
    (55.029, -68.796, 13),
    (40.221, -49.746, 13),
    (21.171, -59.271, 13),
    (-2.121, -59.271, 13),
    (-2.121, 2.121, 13),
    (16.929, 11.646, 13),
    (35.979, 21.171, 13),
    (59.271, 21.171, 13),
    (114.756, -69.64, 13),
    (138.666, -62.102, 13),
    (187.108, -27.152, 13),
    (188.311, -3.054, 13),
    (209.379, 0.07, 13),
    (228.459, 13.43, 13),
    (193.246, 63.72, 13),
    (172.177, 60.596, 13),
    (151.109, 57.472, 13),
    (132.029, 44.112, 13),
    (107.879, 16.689, 0),
    (107.879, 16.689, 13),
    (135.045, 36.741, 0),
    (135.045, 36.741, 13),
    (157.004, 52.117, 0),
    (157.004, 52.117, 13),
    (178.072, 55.241, 0),
    (178.072, 55.241, 13),
    (203.484, 5.425, 0),
    (203.484, 5.425, 13),
    (182.416, 2.301, 0),
    (182.416, 2.301, 13),
    (173.165, -4.176, 0),
    (173.165, -4.176, 13),
    (94.783, 12.56, 0),
    (94.783, 12.56, 13),
    (61.029, 13.404, 0),
    (61.029, 13.404, 13),
    (34.221, 13.404, 0),
    (34.221, 13.404, 13),
    (15.171, 3.879, 0),
    (15.171, 3.879, 13),
    (22.929, -51.504, 0),
    (22.929, -51.504, 13),
    (41.979, -41.979, 0),
    (41.979, -41.979, 13),
    (53.271, -41.979, 0),
    (53.271, -41.979, 13),
    (124.612, 25.006, 13),
    (102.168, 11.968, 13),
    (76.306, 9.775, 13),
    (57.4, 14.537, 13),
    (47.625, 19.3, 13),
    (37.85, 14.537, 13),
    (28.325, 9.775, 13),
    (18.8, 5.013, 13),
    (9.275, 0.25, 13),
    (-0.25, -28.575, 13),
    (9.525, -57.4, 13),
    (19.3, -52.638, 13),
    (28.825, -47.875, 13),
    (38.35, -43.112, 13),
    (47.625, -38.35, 13),
    (56.9, -52.638, 13),
    (85.619, -66.925, 13),
    (125.895, -63.281, 13),
    (160.976, -43.165, 13),
    (176.307, -14.989, 13),
    (175.709, 2.035, 13),
    (186.039, 3.454, 13),
    (196.573, 5.016, 13),
    (207.107, 6.578, 13),
    (217.846, 8.283, 13),
    (209.319, 37.502, 13),
    (184.984, 55.651, 13),
    (174.45, 54.089, 13),
    (163.916, 52.527, 13),
    (153.381, 50.964, 13),
    (142.643, 49.259, 13),
    (137.367, 39.751, 13),
]))
chamfer.Size = 1

doc.recompute()
